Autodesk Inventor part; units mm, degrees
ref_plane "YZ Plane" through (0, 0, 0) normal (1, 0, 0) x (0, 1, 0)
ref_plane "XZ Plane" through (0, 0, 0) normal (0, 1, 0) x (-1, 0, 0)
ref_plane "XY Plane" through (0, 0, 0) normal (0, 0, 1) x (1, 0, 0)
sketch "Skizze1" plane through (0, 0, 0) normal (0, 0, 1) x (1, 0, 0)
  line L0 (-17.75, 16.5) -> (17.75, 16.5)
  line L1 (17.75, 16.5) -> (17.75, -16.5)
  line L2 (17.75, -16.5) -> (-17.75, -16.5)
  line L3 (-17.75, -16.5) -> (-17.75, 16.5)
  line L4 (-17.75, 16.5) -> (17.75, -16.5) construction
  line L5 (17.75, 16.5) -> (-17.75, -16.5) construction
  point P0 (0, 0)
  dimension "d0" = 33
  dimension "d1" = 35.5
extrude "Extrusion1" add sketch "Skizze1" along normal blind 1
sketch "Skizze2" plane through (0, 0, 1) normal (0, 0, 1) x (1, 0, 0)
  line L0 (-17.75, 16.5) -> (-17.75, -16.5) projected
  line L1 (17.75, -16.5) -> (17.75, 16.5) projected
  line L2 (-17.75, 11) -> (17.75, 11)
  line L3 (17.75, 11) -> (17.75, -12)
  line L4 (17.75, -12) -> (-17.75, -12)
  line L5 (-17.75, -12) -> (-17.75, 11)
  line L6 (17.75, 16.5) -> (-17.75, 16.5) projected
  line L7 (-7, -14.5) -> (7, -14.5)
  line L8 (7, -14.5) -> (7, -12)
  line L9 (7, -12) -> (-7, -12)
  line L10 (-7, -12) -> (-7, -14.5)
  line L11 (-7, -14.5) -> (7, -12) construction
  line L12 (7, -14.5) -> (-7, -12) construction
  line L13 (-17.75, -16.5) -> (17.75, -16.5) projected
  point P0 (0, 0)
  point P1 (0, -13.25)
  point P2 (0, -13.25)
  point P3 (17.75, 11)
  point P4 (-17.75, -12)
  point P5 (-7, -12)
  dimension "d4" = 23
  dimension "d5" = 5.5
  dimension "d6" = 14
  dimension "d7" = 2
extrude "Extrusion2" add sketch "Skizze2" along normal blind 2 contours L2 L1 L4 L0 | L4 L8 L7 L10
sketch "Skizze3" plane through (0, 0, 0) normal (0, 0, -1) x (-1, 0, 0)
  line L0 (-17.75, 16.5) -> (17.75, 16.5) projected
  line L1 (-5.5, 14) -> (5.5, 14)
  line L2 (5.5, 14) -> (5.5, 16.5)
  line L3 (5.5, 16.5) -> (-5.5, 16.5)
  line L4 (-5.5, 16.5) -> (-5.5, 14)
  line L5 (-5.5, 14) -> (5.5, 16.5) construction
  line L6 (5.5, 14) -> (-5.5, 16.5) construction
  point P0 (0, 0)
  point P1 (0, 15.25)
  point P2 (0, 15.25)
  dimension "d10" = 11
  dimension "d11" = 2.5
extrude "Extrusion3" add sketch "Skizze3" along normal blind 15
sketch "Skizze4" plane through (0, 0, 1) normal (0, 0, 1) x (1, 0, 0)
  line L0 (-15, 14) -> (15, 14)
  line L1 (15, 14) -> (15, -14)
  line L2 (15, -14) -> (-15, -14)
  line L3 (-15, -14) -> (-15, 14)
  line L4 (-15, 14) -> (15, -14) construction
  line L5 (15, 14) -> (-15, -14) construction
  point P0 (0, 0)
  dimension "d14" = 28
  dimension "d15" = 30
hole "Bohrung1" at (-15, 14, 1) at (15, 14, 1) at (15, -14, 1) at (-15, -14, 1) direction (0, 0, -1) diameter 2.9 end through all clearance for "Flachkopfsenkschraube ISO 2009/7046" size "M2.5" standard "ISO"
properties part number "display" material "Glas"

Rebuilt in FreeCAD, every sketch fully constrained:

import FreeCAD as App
import Part
import Sketcher
from FreeCAD import Vector
Q = App.Units.Quantity


def add_polygon(sketch, points):
    """Adds a closed chain of lines whose ends are joined by coincident constraints."""
    first, n = sketch.GeometryCount, len(points)
    for a, b in zip(points, points[1:] + points[:1]):
        sketch.addGeometry(Part.LineSegment(App.Vector(*a, 0), App.Vector(*b, 0)), False)
    for i in range(n):
        sketch.addConstraint(Sketcher.Constraint("Coincident", first + i, 2, first + (i + 1) % n, 1))

doc = App.newDocument("Part")
body = doc.addObject("PartDesign::Body", "Body")

sketch1 = body.newObject("Sketcher::SketchObject", "Sketch")
sketch1.AttachmentSupport = (doc.getObject("XY_Plane"), [""])
sketch1.MapMode = "FlatFace"
add_polygon(sketch1, [(18, 16), (-18, 16), (-18, -16), (18, -16)])
sketch1.addConstraint([
    Sketcher.Constraint("Horizontal", 0),
    Sketcher.Constraint("Vertical", 1),
    Sketcher.Constraint("Horizontal", 2),
    Sketcher.Constraint("Vertical", 3),
    Sketcher.Constraint("Symmetric", 0, 2, 2, 2, -1, 1),
    Sketcher.Constraint("DistanceY", 1, 2, 1, 1, Q("33 mm")),
    Sketcher.Constraint("DistanceX", 0, 2, 0, 1, Q("35.5 mm")),
])
pad1 = body.newObject("PartDesign::Pad", "Pad")
pad1.Profile = sketch1
pad1.Length = 1

sketch2 = body.newObject("Sketcher::SketchObject", "Sketch001")
sketch2.AttachmentSupport = (doc.getObject("XY_Plane"), [""])
sketch2.MapMode = "FlatFace"
sketch2.AttachmentOffset = App.Placement(Vector(0, 0, 1), App.Rotation())
add_polygon(sketch2, [(17.8, 11), (-17.8, 11), (-17.8, -12), (-7, -12), (-7, -14.5), (7, -14.5), (7, -12), (17.8, -12)])
sketch2.addConstraint([
    Sketcher.Constraint("Horizontal", 0),
    Sketcher.Constraint("Vertical", 1),
    Sketcher.Constraint("Horizontal", 2),
    Sketcher.Constraint("Vertical", 3),
    Sketcher.Constraint("Horizontal", 4),
    Sketcher.Constraint("Vertical", 5),
    Sketcher.Constraint("Horizontal", 6),
    Sketcher.Constraint("Vertical", 7),
    Sketcher.Constraint("Symmetric", 2, 2, 5, 2, -2),
    Sketcher.Constraint("Equal", 2, 6),
    Sketcher.Constraint("DistanceX", 4, 1, 4, 2, Q("14 mm")),
    Sketcher.Constraint("DistanceY", 1, 2, 1, 1, Q("23 mm")),
    Sketcher.Constraint("DistanceX", 0, 2, 0, 1, Q("35.5 mm")),
    Sketcher.Constraint("DistanceY", 3, 2, 3, 1, Q("2.5 mm")),
    Sketcher.Constraint("DistanceY", -1, 1, 0, 2, Q("11 mm")),
])
pad2 = body.newObject("PartDesign::Pad", "Pad001")
pad2.Profile = sketch2
pad2.Length = 2

sketch3 = body.newObject("Sketcher::SketchObject", "Sketch002")
sketch3.AttachmentSupport = (doc.getObject("XY_Plane"), [""])
sketch3.MapMode = "FlatFace"
add_polygon(sketch3, [(-5.5, 16.5), (5.5, 16.5), (5.5, 14), (-5.5, 14)])
sketch3.addConstraint([
    Sketcher.Constraint("Horizontal", 0),
    Sketcher.Constraint("Vertical", 1),
    Sketcher.Constraint("Horizontal", 2),
    Sketcher.Constraint("Vertical", 3),
    Sketcher.Constraint("DistanceX", 0, 1, 0, 2, Q("11 mm")),
    Sketcher.Constraint("DistanceY", 1, 2, 1, 1, Q("2.5 mm")),
    Sketcher.Constraint("DistanceY", -1, 1, 1, 2, Q("14 mm")),
    Sketcher.Constraint("DistanceX", -1, 1, 0, 2, Q("5.5 mm")),
])
pad3 = body.newObject("PartDesign::Pad", "Pad002")
pad3.Profile = sketch3
pad3.Length = 15
pad3.Reversed = True

sketch4 = body.newObject("Sketcher::SketchObject", "Sketch003")
sketch4.AttachmentSupport = (doc.getObject("XY_Plane"), [""])
sketch4.MapMode = "FlatFace"
sketch4.AttachmentOffset = App.Placement(Vector(0, 0, 1), App.Rotation())
sketch4.addGeometry([
    Part.Circle(Vector(-15, 14, 0), Vector(0, 0, 1), 1.4),
    Part.Circle(Vector(15, 14, 0), Vector(0, 0, 1), 1.4),
    Part.Circle(Vector(15, -14, 0), Vector(0, 0, 1), 1.4),
    Part.Circle(Vector(-15, -14, 0), Vector(0, 0, 1), 1.4),
], False)
sketch4.addConstraint([
    Sketcher.Constraint("Equal", 0, 1),
    Sketcher.Constraint("Equal", 1, 2),
    Sketcher.Constraint("Equal", 2, 3),
    Sketcher.Constraint("Symmetric", 0, 3, 2, 3, -1, 1),
    Sketcher.Constraint("Symmetric", 1, 3, 3, 3, -1, 1),
    Sketcher.Constraint("Symmetric", 0, 3, 1, 3, -2),
    Sketcher.Constraint("Diameter", 0, Q("2.9 mm")),
    Sketcher.Constraint("DistanceX", 0, 3, -1, 1, Q("15 mm")),
    Sketcher.Constraint("DistanceY", -1, 1, 0, 3, Q("14 mm")),
])
doc.recompute()
hole = body.newObject("PartDesign::Hole", "Hole")
hole.Profile = sketch4
hole.ThreadType = "None"
hole.Diameter = 2.9
hole.DepthType = "ThroughAll"

doc.recompute()
